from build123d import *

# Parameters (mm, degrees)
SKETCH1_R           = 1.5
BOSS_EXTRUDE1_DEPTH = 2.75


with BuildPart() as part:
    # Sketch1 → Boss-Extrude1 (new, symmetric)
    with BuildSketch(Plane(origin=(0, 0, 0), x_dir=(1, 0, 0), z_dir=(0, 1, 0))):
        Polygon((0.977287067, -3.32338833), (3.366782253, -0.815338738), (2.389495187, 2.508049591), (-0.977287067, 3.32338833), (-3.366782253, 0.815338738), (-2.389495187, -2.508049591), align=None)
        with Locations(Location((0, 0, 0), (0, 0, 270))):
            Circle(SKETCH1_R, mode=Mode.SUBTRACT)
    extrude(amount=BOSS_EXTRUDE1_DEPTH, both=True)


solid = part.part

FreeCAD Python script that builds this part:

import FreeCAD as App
import Part
import Sketcher

V = App.Vector
Q = App.Units.Quantity


def add_polygon(sketch, points):
    """Adds a closed chain of lines whose ends are joined by coincident constraints."""
    first, n = sketch.GeometryCount, len(points)
    for a, b in zip(points, points[1:] + points[:1]):
        sketch.addGeometry(Part.LineSegment(App.Vector(*a, 0), App.Vector(*b, 0)), False)
    for i in range(n):
        sketch.addConstraint(Sketcher.Constraint("Coincident", first + i, 2, first + (i + 1) % n, 1))

doc = App.newDocument("Part")
params = doc.addObject("Spreadsheet::Sheet", "Params")
for row, (alias, value) in enumerate([
    ("sketch1_diameter", "3 mm"),
    ("pad1_length", "5.5 mm"),
], start=1):
    params.set(f"A{row}", alias)
    params.set(f"B{row}", "=" + value)
    params.setAlias(f"B{row}", alias)

body = doc.addObject("PartDesign::Body", "Body")

# Sketch on XZ plane
sketch1 = body.newObject("Sketcher::SketchObject", "Sketch")
sketch1.AttachmentSupport = (doc.getObject("XZ_Plane"), [""])
sketch1.MapMode = "FlatFace"
add_polygon(sketch1, [(0.977287, 3.323388), (3.366782, 0.815339), (2.389495, -2.50805), (-0.977287, -3.323388), (-3.366782, -0.815339), (-2.389495, 2.50805)])  # lines 0-5
sketch1.addGeometry(Part.Circle(V(0, 0, 0), V(0, 0, 1), 1.5), False)  # 6
sketch1.addConstraint(Sketcher.Constraint("Coincident", 6, 3, -1, 1))
sketch1.addConstraint(Sketcher.Constraint("Symmetric", 0, 2, 3, 2, -1, 1))
sketch1.addConstraint(Sketcher.Constraint("Symmetric", 1, 2, 4, 2, -1, 1))
sketch1.addConstraint(Sketcher.Constraint("Symmetric", 2, 2, 5, 2, -1, 1))
sketch1.addConstraint(Sketcher.Constraint("Equal", 0, 1))
sketch1.addConstraint(Sketcher.Constraint("Equal", 1, 2))
sketch1.addConstraint(Sketcher.Constraint("Diameter", 6, Q("3 mm")))
sketch1.addConstraint(Sketcher.Constraint("Distance", 0, Q("3.464102 mm")))
sketch1.addConstraint(Sketcher.Constraint("DistanceY", 1, 2, 4, 2, Q("5.016099 mm")))
sketch1.addConstraint(Sketcher.Constraint("DistanceY", -1, 1, 0, 2, Q("0.815339 mm")))
sketch1.addConstraint(Sketcher.Constraint("DistanceY", 2, 2, -1, 1, Q("3.323388 mm")))
sketch1.setExpression("Constraints[12]", "Params.sketch1_diameter")
pad1 = body.newObject("PartDesign::Pad", "Pad")
pad1.Profile = sketch1
pad1.setExpression("Length", "Params.pad1_length")
pad1.Midplane = True

doc.recompute()
